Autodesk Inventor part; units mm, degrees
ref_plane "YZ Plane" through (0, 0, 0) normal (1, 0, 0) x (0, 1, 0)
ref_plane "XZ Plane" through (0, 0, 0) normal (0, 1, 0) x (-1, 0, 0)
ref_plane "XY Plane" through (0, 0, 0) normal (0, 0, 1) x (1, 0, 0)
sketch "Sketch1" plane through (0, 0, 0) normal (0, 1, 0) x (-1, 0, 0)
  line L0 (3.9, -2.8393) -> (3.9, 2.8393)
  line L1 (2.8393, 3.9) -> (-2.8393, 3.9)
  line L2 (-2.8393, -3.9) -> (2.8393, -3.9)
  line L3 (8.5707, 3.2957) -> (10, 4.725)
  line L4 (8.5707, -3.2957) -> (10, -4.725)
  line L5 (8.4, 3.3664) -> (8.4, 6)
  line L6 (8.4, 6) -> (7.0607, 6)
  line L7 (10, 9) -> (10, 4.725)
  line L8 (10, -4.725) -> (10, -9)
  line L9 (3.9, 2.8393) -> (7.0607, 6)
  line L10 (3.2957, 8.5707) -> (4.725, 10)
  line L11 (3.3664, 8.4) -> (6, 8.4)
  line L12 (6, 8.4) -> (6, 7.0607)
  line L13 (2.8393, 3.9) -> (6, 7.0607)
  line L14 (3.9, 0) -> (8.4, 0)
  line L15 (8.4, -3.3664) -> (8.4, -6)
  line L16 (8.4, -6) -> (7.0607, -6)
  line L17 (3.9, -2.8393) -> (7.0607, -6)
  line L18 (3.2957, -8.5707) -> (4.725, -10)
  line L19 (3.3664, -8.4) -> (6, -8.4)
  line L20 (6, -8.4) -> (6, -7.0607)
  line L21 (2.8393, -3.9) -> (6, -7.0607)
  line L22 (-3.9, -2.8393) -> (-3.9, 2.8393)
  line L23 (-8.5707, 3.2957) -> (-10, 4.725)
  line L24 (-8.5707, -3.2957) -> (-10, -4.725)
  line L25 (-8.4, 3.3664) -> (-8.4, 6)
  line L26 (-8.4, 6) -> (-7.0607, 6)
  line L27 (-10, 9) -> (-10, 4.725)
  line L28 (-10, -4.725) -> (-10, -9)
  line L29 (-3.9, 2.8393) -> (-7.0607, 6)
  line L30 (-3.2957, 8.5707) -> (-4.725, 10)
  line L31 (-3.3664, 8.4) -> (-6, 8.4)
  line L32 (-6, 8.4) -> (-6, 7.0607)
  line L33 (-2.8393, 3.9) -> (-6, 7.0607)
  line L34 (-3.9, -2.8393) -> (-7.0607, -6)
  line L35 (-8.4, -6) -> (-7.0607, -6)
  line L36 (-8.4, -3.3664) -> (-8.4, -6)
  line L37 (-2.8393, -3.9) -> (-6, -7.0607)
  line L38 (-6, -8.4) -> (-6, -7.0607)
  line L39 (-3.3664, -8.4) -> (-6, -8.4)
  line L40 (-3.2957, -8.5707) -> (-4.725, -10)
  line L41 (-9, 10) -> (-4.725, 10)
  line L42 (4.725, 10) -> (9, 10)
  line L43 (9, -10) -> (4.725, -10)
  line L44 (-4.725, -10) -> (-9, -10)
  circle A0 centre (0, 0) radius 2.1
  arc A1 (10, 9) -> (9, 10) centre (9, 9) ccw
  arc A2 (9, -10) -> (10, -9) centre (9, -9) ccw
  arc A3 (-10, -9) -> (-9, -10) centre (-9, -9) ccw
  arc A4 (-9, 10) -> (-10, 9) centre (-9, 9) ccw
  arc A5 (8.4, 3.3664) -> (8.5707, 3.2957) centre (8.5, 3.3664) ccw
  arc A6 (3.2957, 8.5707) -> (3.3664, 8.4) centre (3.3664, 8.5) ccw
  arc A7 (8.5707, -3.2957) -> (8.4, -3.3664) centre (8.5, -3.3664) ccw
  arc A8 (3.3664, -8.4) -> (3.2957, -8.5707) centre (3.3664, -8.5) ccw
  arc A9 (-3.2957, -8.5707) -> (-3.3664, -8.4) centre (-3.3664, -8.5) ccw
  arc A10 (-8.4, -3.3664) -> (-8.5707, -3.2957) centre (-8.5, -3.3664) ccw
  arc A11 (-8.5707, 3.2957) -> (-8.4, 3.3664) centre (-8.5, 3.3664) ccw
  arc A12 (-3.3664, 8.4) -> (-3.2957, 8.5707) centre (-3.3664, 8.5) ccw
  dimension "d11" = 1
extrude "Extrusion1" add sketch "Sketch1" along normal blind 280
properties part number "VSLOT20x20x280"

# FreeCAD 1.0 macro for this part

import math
import FreeCAD as App
import Part
import Sketcher
Q = App.Units.Quantity

doc = App.newDocument("Part")
body = doc.addObject("PartDesign::Body", "Body")

# Sketch on XZ plane
sketch1 = body.newObject("Sketcher::SketchObject", "Sketch")
sketch1.AttachmentSupport = (doc.getObject("XZ_Plane"), [""])
sketch1.MapMode = "FlatFace"
sketch1.addGeometry([
    Part.LineSegment(App.Vector(-7.06, -6, 0), App.Vector(-3.9, -2.84, 0)),  # 0
    Part.LineSegment(App.Vector(-3.9, -2.84, 0), App.Vector(-3.9, 2.84, 0)),  # 1
    Part.LineSegment(App.Vector(-3.9, 2.84, 0), App.Vector(-7.06, 6, 0)),  # 2
    Part.LineSegment(App.Vector(-7.06, 6, 0), App.Vector(-8.4, 6, 0)),  # 3
    Part.LineSegment(App.Vector(-8.4, 6, 0), App.Vector(-8.4, 3.37, 0)),  # 4
    Part.ArcOfCircle(Part.Circle(App.Vector(-8.5, 3.37, 0), App.Vector(0, 0, 1), 0.1), math.radians(-135), math.radians(0)),  # 5
    Part.LineSegment(App.Vector(-8.57, 3.3, 0), App.Vector(-10, 4.72, 0)),  # 6
    Part.LineSegment(App.Vector(-10, 4.72, 0), App.Vector(-10, 9, 0)),  # 7
    Part.ArcOfCircle(Part.Circle(App.Vector(-9, 9, 0), App.Vector(0, 0, 1), 1), math.radians(90), math.radians(180)),  # 8
    Part.LineSegment(App.Vector(-9, 10, 0), App.Vector(-4.72, 10, 0)),  # 9
    Part.LineSegment(App.Vector(-4.72, 10, 0), App.Vector(-3.3, 8.57, 0)),  # 10
    Part.ArcOfCircle(Part.Circle(App.Vector(-3.37, 8.5, 0), App.Vector(0, 0, 1), 0.1), math.radians(-90), math.radians(45)),  # 11
    Part.LineSegment(App.Vector(-3.37, 8.4, 0), App.Vector(-6, 8.4, 0)),  # 12
    Part.LineSegment(App.Vector(-6, 8.4, 0), App.Vector(-6, 7.06, 0)),  # 13
    Part.LineSegment(App.Vector(-6, 7.06, 0), App.Vector(-2.84, 3.9, 0)),  # 14
    Part.LineSegment(App.Vector(-2.84, 3.9, 0), App.Vector(2.84, 3.9, 0)),  # 15
    Part.LineSegment(App.Vector(2.84, 3.9, 0), App.Vector(6, 7.06, 0)),  # 16
    Part.LineSegment(App.Vector(6, 7.06, 0), App.Vector(6, 8.4, 0)),  # 17
    Part.LineSegment(App.Vector(6, 8.4, 0), App.Vector(3.37, 8.4, 0)),  # 18
    Part.ArcOfCircle(Part.Circle(App.Vector(3.37, 8.5, 0), App.Vector(0, 0, 1), 0.1), math.radians(135), math.radians(270)),  # 19
    Part.LineSegment(App.Vector(3.3, 8.57, 0), App.Vector(4.72, 10, 0)),  # 20
    Part.LineSegment(App.Vector(4.72, 10, 0), App.Vector(9, 10, 0)),  # 21
    Part.ArcOfCircle(Part.Circle(App.Vector(9, 9, 0), App.Vector(0, 0, 1), 1), math.radians(0), math.radians(90)),  # 22
    Part.LineSegment(App.Vector(10, 9, 0), App.Vector(10, 4.72, 0)),  # 23
    Part.LineSegment(App.Vector(10, 4.72, 0), App.Vector(8.57, 3.3, 0)),  # 24
    Part.ArcOfCircle(Part.Circle(App.Vector(8.5, 3.37, 0), App.Vector(0, 0, 1), 0.1), math.radians(180), math.radians(315)),  # 25
    Part.LineSegment(App.Vector(8.4, 3.37, 0), App.Vector(8.4, 6, 0)),  # 26
    Part.LineSegment(App.Vector(8.4, 6, 0), App.Vector(7.06, 6, 0)),  # 27
    Part.LineSegment(App.Vector(7.06, 6, 0), App.Vector(3.9, 2.84, 0)),  # 28
    Part.LineSegment(App.Vector(3.9, 2.84, 0), App.Vector(3.9, -2.84, 0)),  # 29
    Part.LineSegment(App.Vector(3.9, -2.84, 0), App.Vector(7.06, -6, 0)),  # 30
    Part.LineSegment(App.Vector(7.06, -6, 0), App.Vector(8.4, -6, 0)),  # 31
    Part.LineSegment(App.Vector(8.4, -6, 0), App.Vector(8.4, -3.37, 0)),  # 32
    Part.ArcOfCircle(Part.Circle(App.Vector(8.5, -3.37, 0), App.Vector(0, 0, 1), 0.1), math.radians(45), math.radians(180)),  # 33
    Part.LineSegment(App.Vector(8.57, -3.3, 0), App.Vector(10, -4.72, 0)),  # 34
    Part.LineSegment(App.Vector(10, -4.72, 0), App.Vector(10, -9, 0)),  # 35
    Part.ArcOfCircle(Part.Circle(App.Vector(9, -9, 0), App.Vector(0, 0, 1), 1), math.radians(-90), math.radians(0)),  # 36
    Part.LineSegment(App.Vector(9, -10, 0), App.Vector(4.72, -10, 0)),  # 37
    Part.LineSegment(App.Vector(4.72, -10, 0), App.Vector(3.3, -8.57, 0)),  # 38
    Part.ArcOfCircle(Part.Circle(App.Vector(3.37, -8.5, 0), App.Vector(0, 0, 1), 0.1), math.radians(90), math.radians(225)),  # 39
    Part.LineSegment(App.Vector(3.37, -8.4, 0), App.Vector(6, -8.4, 0)),  # 40
    Part.LineSegment(App.Vector(6, -8.4, 0), App.Vector(6, -7.06, 0)),  # 41
    Part.LineSegment(App.Vector(6, -7.06, 0), App.Vector(2.84, -3.9, 0)),  # 42
    Part.LineSegment(App.Vector(2.84, -3.9, 0), App.Vector(-2.84, -3.9, 0)),  # 43
    Part.LineSegment(App.Vector(-2.84, -3.9, 0), App.Vector(-6, -7.06, 0)),  # 44
    Part.LineSegment(App.Vector(-6, -7.06, 0), App.Vector(-6, -8.4, 0)),  # 45
    Part.LineSegment(App.Vector(-6, -8.4, 0), App.Vector(-3.37, -8.4, 0)),  # 46
    Part.ArcOfCircle(Part.Circle(App.Vector(-3.37, -8.5, 0), App.Vector(0, 0, 1), 0.1), math.radians(-45), math.radians(90)),  # 47
    Part.LineSegment(App.Vector(-3.3, -8.57, 0), App.Vector(-4.72, -10, 0)),  # 48
    Part.LineSegment(App.Vector(-4.72, -10, 0), App.Vector(-9, -10, 0)),  # 49
    Part.ArcOfCircle(Part.Circle(App.Vector(-9, -9, 0), App.Vector(0, 0, 1), 1), math.radians(180), math.radians(270)),  # 50
    Part.LineSegment(App.Vector(-10, -9, 0), App.Vector(-10, -4.72, 0)),  # 51
    Part.LineSegment(App.Vector(-10, -4.72, 0), App.Vector(-8.57, -3.3, 0)),  # 52
    Part.ArcOfCircle(Part.Circle(App.Vector(-8.5, -3.37, 0), App.Vector(0, 0, 1), 0.1), math.radians(0), math.radians(135)),  # 53
    Part.LineSegment(App.Vector(-8.4, -3.37, 0), App.Vector(-8.4, -6, 0)),  # 54
    Part.LineSegment(App.Vector(-8.4, -6, 0), App.Vector(-7.06, -6, 0)),  # 55
    Part.Circle(App.Vector(0, 0, 0), App.Vector(0, 0, 1), 2.1),  # 56
], False)
sketch1.addConstraint([
    Sketcher.Constraint("Coincident", 0, 2, 1, 1),
    Sketcher.Constraint("Coincident", 1, 2, 2, 1),
    Sketcher.Constraint("Coincident", 2, 2, 3, 1),
    Sketcher.Constraint("Coincident", 3, 2, 4, 1),
    Sketcher.Constraint("Tangent", 4, 2, 5, 2),
    Sketcher.Constraint("Tangent", 5, 1, 6, 1),
    Sketcher.Constraint("Coincident", 6, 2, 7, 1),
    Sketcher.Constraint("Tangent", 7, 2, 8, 2),
    Sketcher.Constraint("Tangent", 8, 1, 9, 1),
    Sketcher.Constraint("Coincident", 9, 2, 10, 1),
    Sketcher.Constraint("Tangent", 10, 2, 11, 2),
    Sketcher.Constraint("Tangent", 11, 1, 12, 1),
    Sketcher.Constraint("Coincident", 12, 2, 13, 1),
    Sketcher.Constraint("Coincident", 13, 2, 14, 1),
    Sketcher.Constraint("Coincident", 14, 2, 15, 1),
    Sketcher.Constraint("Coincident", 15, 2, 16, 1),
    Sketcher.Constraint("Coincident", 16, 2, 17, 1),
    Sketcher.Constraint("Coincident", 17, 2, 18, 1),
    Sketcher.Constraint("Tangent", 18, 2, 19, 2),
    Sketcher.Constraint("Tangent", 19, 1, 20, 1),
    Sketcher.Constraint("Coincident", 20, 2, 21, 1),
    Sketcher.Constraint("Tangent", 21, 2, 22, 2),
    Sketcher.Constraint("Tangent", 22, 1, 23, 1),
    Sketcher.Constraint("Coincident", 23, 2, 24, 1),
    Sketcher.Constraint("Tangent", 24, 2, 25, 2),
    Sketcher.Constraint("Tangent", 25, 1, 26, 1),
    Sketcher.Constraint("Coincident", 26, 2, 27, 1),
    Sketcher.Constraint("Coincident", 27, 2, 28, 1),
    Sketcher.Constraint("Coincident", 28, 2, 29, 1),
    Sketcher.Constraint("Coincident", 29, 2, 30, 1),
    Sketcher.Constraint("Coincident", 30, 2, 31, 1),
    Sketcher.Constraint("Coincident", 31, 2, 32, 1),
    Sketcher.Constraint("Tangent", 32, 2, 33, 2),
    Sketcher.Constraint("Tangent", 33, 1, 34, 1),
    Sketcher.Constraint("Coincident", 34, 2, 35, 1),
    Sketcher.Constraint("Tangent", 35, 2, 36, 2),
    Sketcher.Constraint("Tangent", 36, 1, 37, 1),
    Sketcher.Constraint("Coincident", 37, 2, 38, 1),
    Sketcher.Constraint("Tangent", 38, 2, 39, 2),
    Sketcher.Constraint("Tangent", 39, 1, 40, 1),
    Sketcher.Constraint("Coincident", 40, 2, 41, 1),
    Sketcher.Constraint("Coincident", 41, 2, 42, 1),
    Sketcher.Constraint("Coincident", 42, 2, 43, 1),
    Sketcher.Constraint("Coincident", 43, 2, 44, 1),
    Sketcher.Constraint("Coincident", 44, 2, 45, 1),
    Sketcher.Constraint("Coincident", 45, 2, 46, 1),
    Sketcher.Constraint("Tangent", 46, 2, 47, 2),
    Sketcher.Constraint("Tangent", 47, 1, 48, 1),
    Sketcher.Constraint("Coincident", 48, 2, 49, 1),
    Sketcher.Constraint("Tangent", 49, 2, 50, 2),
    Sketcher.Constraint("Tangent", 50, 1, 51, 1),
    Sketcher.Constraint("Coincident", 51, 2, 52, 1),
    Sketcher.Constraint("Tangent", 52, 2, 53, 2),
    Sketcher.Constraint("Tangent", 53, 1, 54, 1),
    Sketcher.Constraint("Coincident", 54, 2, 55, 1),
    Sketcher.Constraint("Coincident", 55, 2, 0, 1),
    Sketcher.Constraint("Vertical", 1),
    Sketcher.Constraint("Horizontal", 3),
    Sketcher.Constraint("Vertical", 4),
    Sketcher.Constraint("Vertical", 7),
    Sketcher.Constraint("Horizontal", 9),
    Sketcher.Constraint("Horizontal", 12),
    Sketcher.Constraint("Vertical", 13),
    Sketcher.Constraint("Horizontal", 15),
    Sketcher.Constraint("Vertical", 17),
    Sketcher.Constraint("Horizontal", 18),
    Sketcher.Constraint("Horizontal", 21),
    Sketcher.Constraint("Vertical", 23),
    Sketcher.Constraint("Vertical", 26),
    Sketcher.Constraint("Horizontal", 27),
    Sketcher.Constraint("Vertical", 29),
    Sketcher.Constraint("Horizontal", 31),
    Sketcher.Constraint("Vertical", 32),
    Sketcher.Constraint("Vertical", 35),
    Sketcher.Constraint("Horizontal", 37),
    Sketcher.Constraint("Horizontal", 40),
    Sketcher.Constraint("Vertical", 41),
    Sketcher.Constraint("Horizontal", 43),
    Sketcher.Constraint("Vertical", 45),
    Sketcher.Constraint("Horizontal", 46),
    Sketcher.Constraint("Horizontal", 49),
    Sketcher.Constraint("Vertical", 51),
    Sketcher.Constraint("Vertical", 54),
    Sketcher.Constraint("Horizontal", 55),
    Sketcher.Constraint("Coincident", 56, 3, -1, 1),
    Sketcher.Constraint("Equal", 5, 11),
    Sketcher.Constraint("Equal", 11, 19),
    Sketcher.Constraint("Equal", 8, 22),
    Sketcher.Constraint("Equal", 19, 25),
    Sketcher.Constraint("Equal", 25, 33),
    Sketcher.Constraint("Equal", 22, 36),
    Sketcher.Constraint("Equal", 33, 39),
    Sketcher.Constraint("Equal", 39, 47),
    Sketcher.Constraint("Equal", 36, 50),
    Sketcher.Constraint("Equal", 47, 53),
    Sketcher.Constraint("Symmetric", 5, 3, 33, 3, -1, 1),
    Sketcher.Constraint("Symmetric", 8, 3, 36, 3, -1, 1),
    Sketcher.Constraint("Symmetric", 11, 3, 39, 3, -1, 1),
    Sketcher.Constraint("Symmetric", 19, 3, 47, 3, -1, 1),
    Sketcher.Constraint("Symmetric", 22, 3, 50, 3, -1, 1),
    Sketcher.Constraint("Symmetric", 25, 3, 53, 3, -1, 1),
    Sketcher.Constraint("Symmetric", 0, 2, 28, 2, -1, 1),
    Sketcher.Constraint("Symmetric", 2, 2, 30, 2, -1, 1),
    Sketcher.Constraint("Symmetric", 13, 2, 41, 2, -1, 1),
    Sketcher.Constraint("Symmetric", 14, 2, 42, 2, -1, 1),
    Sketcher.Constraint("Symmetric", 16, 2, 44, 2, -1, 1),
    Sketcher.Constraint("Symmetric", 27, 2, 55, 2, -1, 1),
    Sketcher.Constraint("Symmetric", 11, 3, 19, 3, -2),
    Sketcher.Constraint("Symmetric", 8, 3, 22, 3, -2),
    Sketcher.Constraint("Symmetric", 5, 3, 25, 3, -2),
    Sketcher.Constraint("Symmetric", 13, 2, 16, 2, -2),
    Sketcher.Constraint("Symmetric", 2, 2, 27, 2, -2),
    Sketcher.Constraint("Perpendicular", 0, 2),
    Sketcher.Constraint("Parallel", 2, 6),
    Sketcher.Constraint("Parallel", 6, 10),
    Sketcher.Constraint("Parallel", 10, 14),
    Sketcher.Constraint("Perpendicular", 14, 16),
    Sketcher.Constraint("Parallel", 16, 20),
    Sketcher.Constraint("Parallel", 20, 24),
    Sketcher.Constraint("Perpendicular", 28, 30),
    Sketcher.Constraint("Parallel", 30, 34),
    Sketcher.Constraint("Parallel", 34, 38),
    Sketcher.Constraint("Perpendicular", 42, 44),
    Sketcher.Constraint("Parallel", 44, 48),
    Sketcher.Constraint("Parallel", 48, 52),
    Sketcher.Constraint("Horizontal", 10, 2, 19, 1),
    Sketcher.Constraint("Equal", 43, 1),
    Sketcher.Constraint("Equal", 46, 4),
    Sketcher.Constraint("Equal", 49, 7),
    Sketcher.Constraint("Equal", 55, 13),
    Sketcher.Constraint("Equal", 6, 10),
    Sketcher.Constraint("Equal", 2, 14),
    Sketcher.Constraint("Radius", 8, Q("1 mm")),
    Sketcher.Constraint("Diameter", 56, Q("4.2 mm")),
    Sketcher.Constraint("Radius", 5, Q("0.1 mm")),
    Sketcher.Constraint("DistanceX", 8, 3, -1, 1, Q("9 mm")),
    Sketcher.Constraint("DistanceY", -1, 1, 2, 2, Q("6 mm")),
    Sketcher.Constraint("DistanceX", 5, 3, -1, 1, Q("8.5 mm")),
    Sketcher.Constraint("DistanceX", 0, 2, -1, 1, Q("3.9 mm")),
    Sketcher.Constraint("Distance", 0, Q("4.47 mm")),
    Sketcher.Constraint("DistanceX", 9, 1, 9, 2, Q("4.275 mm")),
])
pad1 = body.newObject("PartDesign::Pad", "Pad")
pad1.Profile = sketch1
pad1.Length = 280
pad1.Reversed = True

doc.recompute()
